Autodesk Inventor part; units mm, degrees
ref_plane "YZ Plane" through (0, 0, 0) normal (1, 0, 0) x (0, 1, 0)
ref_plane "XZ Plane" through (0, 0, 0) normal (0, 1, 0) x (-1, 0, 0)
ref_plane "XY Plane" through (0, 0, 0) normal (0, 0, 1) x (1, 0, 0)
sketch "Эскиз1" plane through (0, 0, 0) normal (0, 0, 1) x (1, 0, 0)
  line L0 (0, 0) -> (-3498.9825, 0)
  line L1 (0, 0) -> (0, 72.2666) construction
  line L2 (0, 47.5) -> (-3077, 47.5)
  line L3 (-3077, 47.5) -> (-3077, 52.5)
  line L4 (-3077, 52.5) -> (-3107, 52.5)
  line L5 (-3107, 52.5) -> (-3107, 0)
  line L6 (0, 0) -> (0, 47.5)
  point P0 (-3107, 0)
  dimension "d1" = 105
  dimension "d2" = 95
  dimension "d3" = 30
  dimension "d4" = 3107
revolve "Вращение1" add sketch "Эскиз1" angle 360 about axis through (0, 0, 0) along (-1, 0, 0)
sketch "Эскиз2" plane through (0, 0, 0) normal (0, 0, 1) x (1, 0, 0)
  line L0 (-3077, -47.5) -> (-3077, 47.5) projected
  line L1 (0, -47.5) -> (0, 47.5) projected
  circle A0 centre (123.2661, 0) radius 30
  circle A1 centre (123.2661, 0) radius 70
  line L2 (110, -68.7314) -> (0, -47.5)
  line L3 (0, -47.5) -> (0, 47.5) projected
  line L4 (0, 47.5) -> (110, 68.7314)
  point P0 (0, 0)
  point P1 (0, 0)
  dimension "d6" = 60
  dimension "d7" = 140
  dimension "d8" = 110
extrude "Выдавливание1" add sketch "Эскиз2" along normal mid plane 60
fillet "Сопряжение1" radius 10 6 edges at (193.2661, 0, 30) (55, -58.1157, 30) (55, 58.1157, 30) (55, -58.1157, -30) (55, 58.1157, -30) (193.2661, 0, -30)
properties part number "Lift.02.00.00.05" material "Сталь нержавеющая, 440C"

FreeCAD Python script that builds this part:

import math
import FreeCAD as App
import Part
import Sketcher

V = App.Vector
Q = App.Units.Quantity


def edges_at(feature, points):
    """Names of the edges that pass closest to the given points."""
    edges = feature.Shape.Edges
    near = lambda p: min(range(len(edges)), key=lambda i: edges[i].distToShape(Part.Vertex(*p))[0])
    return sorted({f"Edge{near(p) + 1}" for p in points})


def add_polygon(sketch, points):
    """Adds a closed chain of lines whose ends are joined by coincident constraints."""
    first, n = sketch.GeometryCount, len(points)
    for a, b in zip(points, points[1:] + points[:1]):
        sketch.addGeometry(Part.LineSegment(App.Vector(*a, 0), App.Vector(*b, 0)), False)
    for i in range(n):
        sketch.addConstraint(Sketcher.Constraint("Coincident", first + i, 2, first + (i + 1) % n, 1))

doc = App.newDocument("Part")
body = doc.addObject("PartDesign::Body", "Body")

sketch1 = body.newObject("Sketcher::SketchObject", "Sketch")
sketch1.AttachmentSupport = (doc.getObject("XY_Plane"), [""])
sketch1.MapMode = "FlatFace"
add_polygon(sketch1, [(-3107, 0), (0, 0), (0, 47.5), (-3077, 47.5), (-3077, 52.5), (-3107, 52.5)])
sketch1.addConstraint([
    Sketcher.Constraint("Horizontal", 0),
    Sketcher.Constraint("Vertical", 1),
    Sketcher.Constraint("Horizontal", 2),
    Sketcher.Constraint("Vertical", 3),
    Sketcher.Constraint("Horizontal", 4),
    Sketcher.Constraint("Vertical", 5),
    Sketcher.Constraint("Coincident", 0, 2, -1, 1),
    Sketcher.Constraint("DistanceX", 0, 1, 0, 2, Q("3107 mm")),
    Sketcher.Constraint("DistanceX", 4, 2, 4, 1, Q("30 mm")),
    Sketcher.Constraint("DistanceY", 3, 1, 3, 2, Q("5 mm")),
    Sketcher.Constraint("DistanceY", 1, 1, 1, 2, Q("47.5 mm")),
])
revolution = body.newObject("PartDesign::Revolution", "Revolution")
revolution.Profile = sketch1
revolution.ReferenceAxis = (sketch1, ["H_Axis"])
revolution.Angle = 360

sketch2 = body.newObject("Sketcher::SketchObject", "Sketch001")
sketch2.AttachmentSupport = (doc.getObject("XY_Plane"), [""])
sketch2.MapMode = "FlatFace"
sketch2.addGeometry([
    Part.LineSegment(V(0, 47.5, 0), V(0, -47.5, 0)),
    Part.LineSegment(V(0, -47.5, 0), V(110, -68.7314, 0)),
    Part.ArcOfCircle(Part.Circle(V(123.2661, 0, 0), V(0, 0, 1), 70), math.radians(-100.924529), math.radians(100.924529)),
    Part.LineSegment(V(110, 68.7314, 0), V(0, 47.5, 0)),
    Part.Circle(V(123.2661, 0, 0), V(0, 0, 1), 30),
], False)
sketch2.addConstraint([
    Sketcher.Constraint("Coincident", 0, 2, 1, 1),
    Sketcher.Constraint("Tangent", 1, 2, 2, 1),
    Sketcher.Constraint("Tangent", 2, 2, 3, 1),
    Sketcher.Constraint("Coincident", 3, 2, 0, 1),
    Sketcher.Constraint("Vertical", 0),
    Sketcher.Constraint("Coincident", 4, 3, 2, 3),
    Sketcher.Constraint("Symmetric", 0, 2, 3, 2, -1, 1),
    Sketcher.Constraint("PointOnObject", 2, 3, -1),
    Sketcher.Constraint("Diameter", 4, Q("60 mm")),
    Sketcher.Constraint("Radius", 2, Q("70 mm")),
    Sketcher.Constraint("DistanceX", -1, 1, 1, 2, Q("110 mm")),
    Sketcher.Constraint("DistanceY", 0, 2, 0, 1, Q("95 mm")),
])
pad1 = body.newObject("PartDesign::Pad", "Pad")
pad1.Profile = sketch2
pad1.Length = 60
pad1.Midplane = True
doc.recompute()

fillet = body.newObject("PartDesign::Fillet", "Fillet")
fillet.Base = (pad1, edges_at(pad1, [
    (193.266, 0, 30),
    (55, -58.116, 30),
    (55, 58.116, 30),
    (55, -58.116, -30),
    (55, 58.116, -30),
    (193.266, 0, -30),
]))
fillet.Radius = 10

doc.recompute()
